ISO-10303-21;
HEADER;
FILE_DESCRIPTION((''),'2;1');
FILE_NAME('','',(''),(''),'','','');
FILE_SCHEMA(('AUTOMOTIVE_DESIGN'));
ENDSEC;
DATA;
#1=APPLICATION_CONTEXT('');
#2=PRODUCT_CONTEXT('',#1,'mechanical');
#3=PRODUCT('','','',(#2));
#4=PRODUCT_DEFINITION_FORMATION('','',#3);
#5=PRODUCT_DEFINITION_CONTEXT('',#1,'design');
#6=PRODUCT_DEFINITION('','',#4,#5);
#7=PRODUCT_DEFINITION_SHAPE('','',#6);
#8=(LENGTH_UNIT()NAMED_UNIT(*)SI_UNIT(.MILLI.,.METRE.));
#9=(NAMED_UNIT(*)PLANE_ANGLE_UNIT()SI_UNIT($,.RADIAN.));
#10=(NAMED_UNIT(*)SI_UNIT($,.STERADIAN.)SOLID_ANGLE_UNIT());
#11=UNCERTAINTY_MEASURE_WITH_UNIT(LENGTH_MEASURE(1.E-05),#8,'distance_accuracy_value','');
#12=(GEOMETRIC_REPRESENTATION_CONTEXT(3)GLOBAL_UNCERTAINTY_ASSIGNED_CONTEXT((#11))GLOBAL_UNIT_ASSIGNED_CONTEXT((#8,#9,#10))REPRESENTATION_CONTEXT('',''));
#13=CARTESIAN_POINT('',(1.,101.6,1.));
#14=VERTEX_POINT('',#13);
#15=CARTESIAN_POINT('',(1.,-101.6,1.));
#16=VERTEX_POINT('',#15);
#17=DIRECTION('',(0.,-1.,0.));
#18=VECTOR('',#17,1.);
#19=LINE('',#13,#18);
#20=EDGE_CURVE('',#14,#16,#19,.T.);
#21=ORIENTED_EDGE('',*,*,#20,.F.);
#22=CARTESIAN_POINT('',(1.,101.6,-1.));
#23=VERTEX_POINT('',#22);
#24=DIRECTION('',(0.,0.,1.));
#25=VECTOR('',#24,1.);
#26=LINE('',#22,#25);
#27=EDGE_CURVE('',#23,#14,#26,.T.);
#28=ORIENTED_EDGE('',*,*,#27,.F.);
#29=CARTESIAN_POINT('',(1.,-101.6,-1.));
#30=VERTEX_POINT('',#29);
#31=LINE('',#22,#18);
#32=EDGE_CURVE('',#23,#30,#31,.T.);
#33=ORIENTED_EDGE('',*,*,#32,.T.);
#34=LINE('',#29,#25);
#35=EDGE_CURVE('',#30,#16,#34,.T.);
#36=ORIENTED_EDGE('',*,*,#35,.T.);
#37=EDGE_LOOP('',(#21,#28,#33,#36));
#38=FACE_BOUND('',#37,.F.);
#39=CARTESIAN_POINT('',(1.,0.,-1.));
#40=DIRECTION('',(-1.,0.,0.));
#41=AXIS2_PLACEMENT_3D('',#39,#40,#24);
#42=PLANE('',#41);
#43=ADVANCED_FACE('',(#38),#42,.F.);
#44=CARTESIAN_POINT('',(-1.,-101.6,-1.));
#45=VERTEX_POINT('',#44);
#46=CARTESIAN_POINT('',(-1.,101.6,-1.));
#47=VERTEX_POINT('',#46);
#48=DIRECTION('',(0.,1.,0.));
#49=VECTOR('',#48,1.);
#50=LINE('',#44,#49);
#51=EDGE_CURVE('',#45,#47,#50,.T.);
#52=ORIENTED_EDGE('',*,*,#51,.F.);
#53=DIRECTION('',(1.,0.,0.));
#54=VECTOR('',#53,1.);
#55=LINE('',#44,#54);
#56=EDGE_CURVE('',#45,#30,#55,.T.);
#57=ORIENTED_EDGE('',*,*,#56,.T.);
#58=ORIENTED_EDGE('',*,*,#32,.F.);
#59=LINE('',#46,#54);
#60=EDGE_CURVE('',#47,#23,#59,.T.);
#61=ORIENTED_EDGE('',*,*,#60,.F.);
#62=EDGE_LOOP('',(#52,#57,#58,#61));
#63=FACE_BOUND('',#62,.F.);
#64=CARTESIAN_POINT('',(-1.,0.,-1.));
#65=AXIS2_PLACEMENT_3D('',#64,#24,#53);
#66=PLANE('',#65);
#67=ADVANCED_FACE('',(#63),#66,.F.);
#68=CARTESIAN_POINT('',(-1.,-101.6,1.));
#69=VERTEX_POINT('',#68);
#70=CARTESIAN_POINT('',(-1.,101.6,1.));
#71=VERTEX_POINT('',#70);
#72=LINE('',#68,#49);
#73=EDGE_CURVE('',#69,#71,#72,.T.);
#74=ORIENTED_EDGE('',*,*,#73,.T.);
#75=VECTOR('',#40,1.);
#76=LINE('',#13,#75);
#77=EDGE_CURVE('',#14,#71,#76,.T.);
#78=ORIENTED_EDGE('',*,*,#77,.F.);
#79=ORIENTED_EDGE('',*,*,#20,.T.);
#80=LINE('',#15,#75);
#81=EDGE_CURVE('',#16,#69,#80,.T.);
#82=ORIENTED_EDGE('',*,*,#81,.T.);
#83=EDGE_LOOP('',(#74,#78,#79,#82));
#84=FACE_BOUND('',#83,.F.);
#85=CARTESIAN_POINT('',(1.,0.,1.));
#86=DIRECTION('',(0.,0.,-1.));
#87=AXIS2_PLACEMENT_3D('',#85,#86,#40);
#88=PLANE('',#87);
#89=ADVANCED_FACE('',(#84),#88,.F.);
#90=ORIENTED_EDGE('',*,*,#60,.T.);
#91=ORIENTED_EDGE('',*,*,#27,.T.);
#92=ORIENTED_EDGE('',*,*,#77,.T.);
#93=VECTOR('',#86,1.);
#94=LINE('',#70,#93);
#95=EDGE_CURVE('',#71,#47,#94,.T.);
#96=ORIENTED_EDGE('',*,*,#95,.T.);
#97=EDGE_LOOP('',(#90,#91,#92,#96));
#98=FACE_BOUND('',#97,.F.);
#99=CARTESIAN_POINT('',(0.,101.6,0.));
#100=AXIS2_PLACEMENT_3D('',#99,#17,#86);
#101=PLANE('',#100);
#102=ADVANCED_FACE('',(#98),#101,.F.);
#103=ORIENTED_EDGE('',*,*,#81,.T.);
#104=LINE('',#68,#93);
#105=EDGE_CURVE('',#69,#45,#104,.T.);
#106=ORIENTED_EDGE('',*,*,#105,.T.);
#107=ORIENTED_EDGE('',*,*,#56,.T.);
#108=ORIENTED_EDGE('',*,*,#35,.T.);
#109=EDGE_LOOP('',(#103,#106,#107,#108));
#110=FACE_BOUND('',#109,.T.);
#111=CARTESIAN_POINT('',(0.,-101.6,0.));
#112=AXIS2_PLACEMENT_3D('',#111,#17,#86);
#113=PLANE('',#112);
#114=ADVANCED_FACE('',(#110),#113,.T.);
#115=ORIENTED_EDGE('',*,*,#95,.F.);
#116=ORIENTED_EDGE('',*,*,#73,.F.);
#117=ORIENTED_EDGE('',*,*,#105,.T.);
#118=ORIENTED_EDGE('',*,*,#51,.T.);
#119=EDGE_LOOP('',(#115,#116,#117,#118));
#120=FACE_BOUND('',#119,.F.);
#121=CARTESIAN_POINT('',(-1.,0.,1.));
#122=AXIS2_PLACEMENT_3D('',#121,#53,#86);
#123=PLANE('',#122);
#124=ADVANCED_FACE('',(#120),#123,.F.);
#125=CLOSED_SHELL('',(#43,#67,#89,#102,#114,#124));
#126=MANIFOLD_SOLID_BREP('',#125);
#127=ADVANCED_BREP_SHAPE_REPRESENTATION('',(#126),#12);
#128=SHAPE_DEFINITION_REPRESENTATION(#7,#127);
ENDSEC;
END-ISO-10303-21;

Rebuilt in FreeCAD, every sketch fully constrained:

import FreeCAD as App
import Part
import Sketcher

V = App.Vector
Q = App.Units.Quantity


def add_polygon(sketch, points):
    """Adds a closed chain of lines whose ends are joined by coincident constraints."""
    first, n = sketch.GeometryCount, len(points)
    for a, b in zip(points, points[1:] + points[:1]):
        sketch.addGeometry(Part.LineSegment(App.Vector(*a, 0), App.Vector(*b, 0)), False)
    for i in range(n):
        sketch.addConstraint(Sketcher.Constraint("Coincident", first + i, 2, first + (i + 1) % n, 1))

doc = App.newDocument("Part")
body = doc.addObject("PartDesign::Body", "Body")

sketch1 = body.newObject("Sketcher::SketchObject", "Sketch")
sketch1.AttachmentSupport = (doc.getObject("XZ_Plane"), [""])
sketch1.MapMode = "FlatFace"
add_polygon(sketch1, [(-1, 1), (-1, -1), (1, -1), (1, 1)])
sketch1.addConstraint([
    Sketcher.Constraint("Vertical", 0),
    Sketcher.Constraint("Horizontal", 1),
    Sketcher.Constraint("Vertical", 2),
    Sketcher.Constraint("Horizontal", 3),
    Sketcher.Constraint("Symmetric", 0, 2, 2, 2, -1, 1),
    Sketcher.Constraint("Equal", 3, 0),
    Sketcher.Constraint("DistanceX", 1, 1, 1, 2, Q("2 mm")),
])
pad1 = body.newObject("PartDesign::Pad", "Pad")
pad1.Profile = sketch1
pad1.Length = 203.2
pad1.Midplane = True

doc.recompute()
